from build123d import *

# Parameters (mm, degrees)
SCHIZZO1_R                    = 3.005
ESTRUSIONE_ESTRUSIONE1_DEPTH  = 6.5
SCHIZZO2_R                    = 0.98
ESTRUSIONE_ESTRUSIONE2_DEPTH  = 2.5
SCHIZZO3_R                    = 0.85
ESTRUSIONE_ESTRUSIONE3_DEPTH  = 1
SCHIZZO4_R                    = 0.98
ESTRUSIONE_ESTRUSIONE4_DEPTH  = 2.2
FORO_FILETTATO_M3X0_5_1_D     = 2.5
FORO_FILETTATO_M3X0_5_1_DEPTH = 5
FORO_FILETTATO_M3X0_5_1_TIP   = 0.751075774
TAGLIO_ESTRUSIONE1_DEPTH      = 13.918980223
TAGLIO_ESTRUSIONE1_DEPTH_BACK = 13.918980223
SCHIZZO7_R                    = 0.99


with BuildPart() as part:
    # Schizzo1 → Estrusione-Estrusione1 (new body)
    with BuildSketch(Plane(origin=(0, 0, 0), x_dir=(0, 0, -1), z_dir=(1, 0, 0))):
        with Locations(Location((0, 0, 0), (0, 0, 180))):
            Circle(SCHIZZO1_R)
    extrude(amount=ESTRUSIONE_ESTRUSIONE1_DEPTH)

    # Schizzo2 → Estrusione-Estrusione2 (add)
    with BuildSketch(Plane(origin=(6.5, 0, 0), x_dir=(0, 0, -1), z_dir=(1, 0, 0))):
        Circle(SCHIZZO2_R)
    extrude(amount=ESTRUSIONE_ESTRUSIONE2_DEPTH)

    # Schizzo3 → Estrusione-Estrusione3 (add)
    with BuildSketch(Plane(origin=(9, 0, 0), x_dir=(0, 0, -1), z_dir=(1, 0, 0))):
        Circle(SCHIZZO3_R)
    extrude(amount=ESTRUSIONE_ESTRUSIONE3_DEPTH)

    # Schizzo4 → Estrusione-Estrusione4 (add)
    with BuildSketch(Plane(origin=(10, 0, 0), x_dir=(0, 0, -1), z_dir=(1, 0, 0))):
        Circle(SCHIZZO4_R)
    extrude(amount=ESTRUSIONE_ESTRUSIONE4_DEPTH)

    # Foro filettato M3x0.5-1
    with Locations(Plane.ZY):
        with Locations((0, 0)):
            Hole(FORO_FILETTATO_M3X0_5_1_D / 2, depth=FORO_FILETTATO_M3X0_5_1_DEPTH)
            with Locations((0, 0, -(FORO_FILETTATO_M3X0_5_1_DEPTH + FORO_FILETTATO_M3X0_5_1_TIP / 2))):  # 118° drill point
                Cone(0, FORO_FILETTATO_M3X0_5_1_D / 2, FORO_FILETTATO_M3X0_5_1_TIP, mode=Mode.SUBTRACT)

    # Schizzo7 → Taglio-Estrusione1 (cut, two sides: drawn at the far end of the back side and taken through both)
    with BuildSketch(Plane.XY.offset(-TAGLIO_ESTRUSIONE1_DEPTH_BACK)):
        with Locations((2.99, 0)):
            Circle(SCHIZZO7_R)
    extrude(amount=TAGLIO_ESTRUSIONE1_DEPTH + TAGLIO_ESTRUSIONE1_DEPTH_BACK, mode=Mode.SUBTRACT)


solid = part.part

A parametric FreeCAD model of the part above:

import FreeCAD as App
import Part
import Sketcher

V = App.Vector
Q = App.Units.Quantity

doc = App.newDocument("Part")
body = doc.addObject("PartDesign::Body", "Body")

sketch1 = body.newObject("Sketcher::SketchObject", "Sketch")
sketch1.AttachmentSupport = (doc.getObject("YZ_Plane"), [""])
sketch1.MapMode = "FlatFace"
sketch1.addGeometry(Part.Circle(V(0, 0, 0), V(0, 0, 1), 3), False)
sketch1.addConstraint([
    Sketcher.Constraint("Coincident", 0, 3, -1, 1),
    Sketcher.Constraint("Diameter", 0, Q("6.01 mm")),
])
pad1 = body.newObject("PartDesign::Pad", "Pad")
pad1.Profile = sketch1
pad1.Length = 6.5

sketch2 = body.newObject("Sketcher::SketchObject", "Sketch001")
sketch2.AttachmentSupport = (doc.getObject("YZ_Plane"), [""])
sketch2.MapMode = "FlatFace"
sketch2.AttachmentOffset = App.Placement(V(0, 0, 6.5), App.Rotation())
sketch2.addGeometry(Part.Circle(V(0, 0, 0), V(0, 0, 1), 1), False)
sketch2.addConstraint([
    Sketcher.Constraint("Coincident", 0, 3, -1, 1),
    Sketcher.Constraint("Diameter", 0, Q("1.96 mm")),
])
pad2 = body.newObject("PartDesign::Pad", "Pad001")
pad2.Profile = sketch2
pad2.Length = 2.5

sketch3 = body.newObject("Sketcher::SketchObject", "Sketch002")
sketch3.AttachmentSupport = (doc.getObject("YZ_Plane"), [""])
sketch3.MapMode = "FlatFace"
sketch3.AttachmentOffset = App.Placement(V(0, 0, 9), App.Rotation())
sketch3.addGeometry(Part.Circle(V(0, 0, 0), V(0, 0, 1), 0.8), False)
sketch3.addConstraint([
    Sketcher.Constraint("Coincident", 0, 3, -1, 1),
    Sketcher.Constraint("Diameter", 0, Q("1.7 mm")),
])
pad3 = body.newObject("PartDesign::Pad", "Pad002")
pad3.Profile = sketch3
pad3.Length = 1

sketch4 = body.newObject("Sketcher::SketchObject", "Sketch003")
sketch4.AttachmentSupport = (doc.getObject("YZ_Plane"), [""])
sketch4.MapMode = "FlatFace"
sketch4.AttachmentOffset = App.Placement(V(0, 0, 10), App.Rotation())
sketch4.addGeometry(Part.Circle(V(0, 0, 0), V(0, 0, 1), 1), False)
sketch4.addConstraint([
    Sketcher.Constraint("Coincident", 0, 3, -1, 1),
    Sketcher.Constraint("Diameter", 0, Q("1.96 mm")),
])
pad4 = body.newObject("PartDesign::Pad", "Pad003")
pad4.Profile = sketch4
pad4.Length = 2.2

sketch5 = body.newObject("Sketcher::SketchObject", "Sketch004")
sketch5.AttachmentSupport = (doc.getObject("YZ_Plane"), [""])
sketch5.MapMode = "FlatFace"
sketch5.addGeometry(Part.Circle(V(0, 0, 0), V(0, 0, 1), 1.2), False)
sketch5.addConstraint([
    Sketcher.Constraint("Coincident", 0, 3, -1, 1),
    Sketcher.Constraint("Diameter", 0, Q("2.5 mm")),
])
doc.recompute()
hole = body.newObject("PartDesign::Hole", "Hole")
hole.Profile = sketch5
hole.ThreadType = "None"
hole.Diameter = 2.5
hole.DepthType = "Dimension"
hole.Depth = 5
hole.DrillPoint = "Angled"
hole.DrillPointAngle = 118
hole.Reversed = True

sketch6 = body.newObject("Sketcher::SketchObject", "Sketch005")
sketch6.AttachmentSupport = (doc.getObject("XY_Plane"), [""])
sketch6.MapMode = "FlatFace"
sketch6.addGeometry(Part.Circle(V(3, 0, 0), V(0, 0, 1), 1), False)
sketch6.addConstraint([
    Sketcher.Constraint("PointOnObject", 0, 3, -1),
    Sketcher.Constraint("Diameter", 0, Q("1.98 mm")),
    Sketcher.Constraint("DistanceX", -1, 1, 0, 3, Q("2.99 mm")),
])
pocket1 = body.newObject("PartDesign::Pocket", "Pocket")
pocket1.Profile = sketch6
pocket1.Type = "ThroughAll"
pocket1.Midplane = True

doc.recompute()
